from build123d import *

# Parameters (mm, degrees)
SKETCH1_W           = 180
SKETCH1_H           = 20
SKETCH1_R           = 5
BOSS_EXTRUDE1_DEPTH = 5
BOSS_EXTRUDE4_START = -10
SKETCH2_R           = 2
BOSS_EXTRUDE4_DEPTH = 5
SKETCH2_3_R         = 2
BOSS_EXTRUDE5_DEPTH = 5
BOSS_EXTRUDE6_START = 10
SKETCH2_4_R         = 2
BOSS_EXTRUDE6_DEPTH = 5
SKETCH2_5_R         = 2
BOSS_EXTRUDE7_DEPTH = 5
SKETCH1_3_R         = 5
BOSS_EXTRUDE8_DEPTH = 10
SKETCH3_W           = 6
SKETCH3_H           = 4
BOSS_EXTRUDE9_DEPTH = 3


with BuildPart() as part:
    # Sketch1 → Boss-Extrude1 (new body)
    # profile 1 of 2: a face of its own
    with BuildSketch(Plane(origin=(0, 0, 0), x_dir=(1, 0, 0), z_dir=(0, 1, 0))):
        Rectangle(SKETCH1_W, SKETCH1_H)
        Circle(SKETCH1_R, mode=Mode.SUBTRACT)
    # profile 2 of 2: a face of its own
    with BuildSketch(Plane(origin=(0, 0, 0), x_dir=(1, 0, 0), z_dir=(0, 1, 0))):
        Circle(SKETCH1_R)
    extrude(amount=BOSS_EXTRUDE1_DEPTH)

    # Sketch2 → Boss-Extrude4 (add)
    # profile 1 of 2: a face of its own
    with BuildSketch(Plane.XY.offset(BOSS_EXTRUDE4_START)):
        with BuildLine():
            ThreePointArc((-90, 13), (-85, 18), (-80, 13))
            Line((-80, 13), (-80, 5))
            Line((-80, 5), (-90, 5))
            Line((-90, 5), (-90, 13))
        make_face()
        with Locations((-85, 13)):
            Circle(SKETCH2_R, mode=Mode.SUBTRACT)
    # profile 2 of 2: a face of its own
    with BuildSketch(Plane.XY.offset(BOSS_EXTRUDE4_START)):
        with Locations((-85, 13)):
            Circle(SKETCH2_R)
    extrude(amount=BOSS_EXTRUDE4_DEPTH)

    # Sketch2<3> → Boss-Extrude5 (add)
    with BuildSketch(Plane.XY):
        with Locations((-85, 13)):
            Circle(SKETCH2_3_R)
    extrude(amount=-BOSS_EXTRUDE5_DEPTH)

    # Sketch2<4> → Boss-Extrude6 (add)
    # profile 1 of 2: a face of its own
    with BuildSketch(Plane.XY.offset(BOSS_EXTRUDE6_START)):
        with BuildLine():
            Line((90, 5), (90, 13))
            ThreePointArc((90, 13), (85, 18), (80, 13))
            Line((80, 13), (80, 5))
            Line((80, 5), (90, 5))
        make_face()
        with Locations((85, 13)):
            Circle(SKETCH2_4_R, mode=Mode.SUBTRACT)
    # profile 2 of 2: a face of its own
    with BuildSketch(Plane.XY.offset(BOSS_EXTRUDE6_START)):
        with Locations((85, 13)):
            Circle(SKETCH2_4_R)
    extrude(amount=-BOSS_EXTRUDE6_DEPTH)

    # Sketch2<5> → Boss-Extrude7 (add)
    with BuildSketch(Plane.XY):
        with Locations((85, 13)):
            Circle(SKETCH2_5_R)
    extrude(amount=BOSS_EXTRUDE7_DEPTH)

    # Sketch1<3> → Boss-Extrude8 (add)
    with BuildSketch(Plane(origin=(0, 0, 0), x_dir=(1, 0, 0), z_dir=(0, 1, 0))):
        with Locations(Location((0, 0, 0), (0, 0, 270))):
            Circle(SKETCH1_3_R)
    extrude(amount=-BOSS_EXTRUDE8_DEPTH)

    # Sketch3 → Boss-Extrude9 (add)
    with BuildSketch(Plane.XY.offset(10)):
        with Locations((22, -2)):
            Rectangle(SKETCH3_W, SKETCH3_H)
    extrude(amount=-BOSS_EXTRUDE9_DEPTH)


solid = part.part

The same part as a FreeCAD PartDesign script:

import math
import FreeCAD as App
import Part
import Sketcher
from FreeCAD import Vector
Q = App.Units.Quantity


def add_polygon(sketch, points):
    """Adds a closed chain of lines whose ends are joined by coincident constraints."""
    first, n = sketch.GeometryCount, len(points)
    for a, b in zip(points, points[1:] + points[:1]):
        sketch.addGeometry(Part.LineSegment(App.Vector(*a, 0), App.Vector(*b, 0)), False)
    for i in range(n):
        sketch.addConstraint(Sketcher.Constraint("Coincident", first + i, 2, first + (i + 1) % n, 1))

doc = App.newDocument("Part")
body = doc.addObject("PartDesign::Body", "Body")

# Sketch on XZ plane
sketch1 = doc.addObject("Sketcher::SketchObject", "Sketch")
body.addObject(sketch1)
sketch1.AttachmentSupport = (doc.XZ_Plane, [""])
sketch1.MapMode = "FlatFace"
add_polygon(sketch1, [(-90, -10), (-90, 10), (90, 10), (90, -10)])  # lines 0-3
sketch1.addConstraint(Sketcher.Constraint("Vertical", 0))
sketch1.addConstraint(Sketcher.Constraint("Horizontal", 1))
sketch1.addConstraint(Sketcher.Constraint("Vertical", 2))
sketch1.addConstraint(Sketcher.Constraint("Horizontal", 3))
sketch1.addConstraint(Sketcher.Constraint("Symmetric", 0, 2, 2, 2, -1, 1))
sketch1.addConstraint(Sketcher.Constraint("DistanceX", 1, 1, 1, 2, Q("180 mm")))
sketch1.addConstraint(Sketcher.Constraint("DistanceY", 0, 1, 0, 2, Q("20 mm")))
pad1 = doc.addObject("PartDesign::Pad", "Pad")
body.addObject(pad1)
pad1.Profile = sketch1
pad1.Length = 5
pad1.Reversed = True

# Sketch on XY plane
sketch2 = doc.addObject("Sketcher::SketchObject", "Sketch001")
body.addObject(sketch2)
sketch2.AttachmentSupport = (doc.XY_Plane, [""])
sketch2.MapMode = "FlatFace"
sketch2.AttachmentOffset = App.Placement(Vector(0, 0, -10), App.Rotation())
sketch2.addGeometry(Part.ArcOfCircle(Part.Circle(Vector(-85, 13, 0), Vector(0, 0, 1), 5), math.radians(0), math.radians(180)), False)
sketch2.addGeometry(Part.LineSegment(Vector(-90, 13, 0), Vector(-90, 5, 0)), False)
sketch2.addGeometry(Part.LineSegment(Vector(-90, 5, 0), Vector(-80, 5, 0)), False)
sketch2.addGeometry(Part.LineSegment(Vector(-80, 5, 0), Vector(-80, 13, 0)), False)
sketch2.addConstraint(Sketcher.Constraint("Tangent", 0, 2, 1, 1))
sketch2.addConstraint(Sketcher.Constraint("Coincident", 1, 2, 2, 1))
sketch2.addConstraint(Sketcher.Constraint("Coincident", 2, 2, 3, 1))
sketch2.addConstraint(Sketcher.Constraint("Tangent", 3, 2, 0, 1))
sketch2.addConstraint(Sketcher.Constraint("Vertical", 1))
sketch2.addConstraint(Sketcher.Constraint("Horizontal", 2))
sketch2.addConstraint(Sketcher.Constraint("Vertical", 3))
sketch2.addConstraint(Sketcher.Constraint("Radius", 0, Q("5 mm")))
sketch2.addConstraint(Sketcher.Constraint("DistanceY", 1, 2, 1, 1, Q("8 mm")))
sketch2.addConstraint(Sketcher.Constraint("DistanceX", 0, 3, -1, 1, Q("85 mm")))
sketch2.addConstraint(Sketcher.Constraint("DistanceY", -1, 1, 0, 3, Q("13 mm")))
pad2 = doc.addObject("PartDesign::Pad", "Pad001")
body.addObject(pad2)
pad2.Profile = sketch2
pad2.Length = 5

# Sketch on XY plane
sketch3 = doc.addObject("Sketcher::SketchObject", "Sketch002")
body.addObject(sketch3)
sketch3.AttachmentSupport = (doc.XY_Plane, [""])
sketch3.MapMode = "FlatFace"
sketch3.addGeometry(Part.Circle(Vector(-85, 13, 0), Vector(0, 0, 1), 2), False)
sketch3.addConstraint(Sketcher.Constraint("Diameter", 0, Q("4 mm")))
sketch3.addConstraint(Sketcher.Constraint("DistanceX", 0, 3, -1, 1, Q("85 mm")))
sketch3.addConstraint(Sketcher.Constraint("DistanceY", -1, 1, 0, 3, Q("13 mm")))
pad3 = doc.addObject("PartDesign::Pad", "Pad002")
body.addObject(pad3)
pad3.Profile = sketch3
pad3.Length = 5
pad3.Reversed = True

# Sketch on XY plane
sketch4 = doc.addObject("Sketcher::SketchObject", "Sketch003")
body.addObject(sketch4)
sketch4.AttachmentSupport = (doc.XY_Plane, [""])
sketch4.MapMode = "FlatFace"
sketch4.AttachmentOffset = App.Placement(Vector(0, 0, 10), App.Rotation())
sketch4.addGeometry(Part.LineSegment(Vector(90, 5, 0), Vector(90, 13, 0)), False)
sketch4.addGeometry(Part.ArcOfCircle(Part.Circle(Vector(85, 13, 0), Vector(0, 0, 1), 5), math.radians(0), math.radians(180)), False)
sketch4.addGeometry(Part.LineSegment(Vector(80, 13, 0), Vector(80, 5, 0)), False)
sketch4.addGeometry(Part.LineSegment(Vector(80, 5, 0), Vector(90, 5, 0)), False)
sketch4.addConstraint(Sketcher.Constraint("Tangent", 0, 2, 1, 1))
sketch4.addConstraint(Sketcher.Constraint("Tangent", 1, 2, 2, 1))
sketch4.addConstraint(Sketcher.Constraint("Coincident", 2, 2, 3, 1))
sketch4.addConstraint(Sketcher.Constraint("Coincident", 3, 2, 0, 1))
sketch4.addConstraint(Sketcher.Constraint("Vertical", 0))
sketch4.addConstraint(Sketcher.Constraint("Vertical", 2))
sketch4.addConstraint(Sketcher.Constraint("Horizontal", 3))
sketch4.addConstraint(Sketcher.Constraint("Radius", 1, Q("5 mm")))
sketch4.addConstraint(Sketcher.Constraint("DistanceY", 0, 1, 0, 2, Q("8 mm")))
sketch4.addConstraint(Sketcher.Constraint("DistanceX", -1, 1, 1, 3, Q("85 mm")))
sketch4.addConstraint(Sketcher.Constraint("DistanceY", -1, 1, 1, 3, Q("13 mm")))
pad4 = doc.addObject("PartDesign::Pad", "Pad003")
body.addObject(pad4)
pad4.Profile = sketch4
pad4.Length = 5
pad4.Reversed = True

# Sketch on XY plane
sketch5 = doc.addObject("Sketcher::SketchObject", "Sketch004")
body.addObject(sketch5)
sketch5.AttachmentSupport = (doc.XY_Plane, [""])
sketch5.MapMode = "FlatFace"
sketch5.addGeometry(Part.Circle(Vector(85, 13, 0), Vector(0, 0, 1), 2), False)
sketch5.addConstraint(Sketcher.Constraint("Diameter", 0, Q("4 mm")))
sketch5.addConstraint(Sketcher.Constraint("DistanceX", -1, 1, 0, 3, Q("85 mm")))
sketch5.addConstraint(Sketcher.Constraint("DistanceY", -1, 1, 0, 3, Q("13 mm")))
pad5 = doc.addObject("PartDesign::Pad", "Pad004")
body.addObject(pad5)
pad5.Profile = sketch5
pad5.Length = 5

# Sketch on XZ plane
sketch6 = doc.addObject("Sketcher::SketchObject", "Sketch005")
body.addObject(sketch6)
sketch6.AttachmentSupport = (doc.XZ_Plane, [""])
sketch6.MapMode = "FlatFace"
sketch6.addGeometry(Part.Circle(Vector(0, 0, 0), Vector(0, 0, 1), 5), False)
sketch6.addConstraint(Sketcher.Constraint("Coincident", 0, 3, -1, 1))
sketch6.addConstraint(Sketcher.Constraint("Diameter", 0, Q("10 mm")))
pad6 = doc.addObject("PartDesign::Pad", "Pad005")
body.addObject(pad6)
pad6.Profile = sketch6
pad6.Length = 10

# Sketch on XY plane
sketch7 = doc.addObject("Sketcher::SketchObject", "Sketch006")
body.addObject(sketch7)
sketch7.AttachmentSupport = (doc.XY_Plane, [""])
sketch7.MapMode = "FlatFace"
sketch7.AttachmentOffset = App.Placement(Vector(0, 0, 10), App.Rotation())
add_polygon(sketch7, [(19, 0), (19, -4), (25, -4), (25, 0)])  # lines 0-3
sketch7.addConstraint(Sketcher.Constraint("Vertical", 0))
sketch7.addConstraint(Sketcher.Constraint("Horizontal", 1))
sketch7.addConstraint(Sketcher.Constraint("Vertical", 2))
sketch7.addConstraint(Sketcher.Constraint("Horizontal", 3))
sketch7.addConstraint(Sketcher.Constraint("PointOnObject", 2, 2, -1))
sketch7.addConstraint(Sketcher.Constraint("DistanceX", 1, 1, 1, 2, Q("6 mm")))
sketch7.addConstraint(Sketcher.Constraint("DistanceY", 0, 2, 0, 1, Q("4 mm")))
sketch7.addConstraint(Sketcher.Constraint("DistanceX", -1, 1, 0, 2, Q("19 mm")))
pad7 = doc.addObject("PartDesign::Pad", "Pad006")
body.addObject(pad7)
pad7.Profile = sketch7
pad7.Length = 3
pad7.Reversed = True

doc.recompute()
